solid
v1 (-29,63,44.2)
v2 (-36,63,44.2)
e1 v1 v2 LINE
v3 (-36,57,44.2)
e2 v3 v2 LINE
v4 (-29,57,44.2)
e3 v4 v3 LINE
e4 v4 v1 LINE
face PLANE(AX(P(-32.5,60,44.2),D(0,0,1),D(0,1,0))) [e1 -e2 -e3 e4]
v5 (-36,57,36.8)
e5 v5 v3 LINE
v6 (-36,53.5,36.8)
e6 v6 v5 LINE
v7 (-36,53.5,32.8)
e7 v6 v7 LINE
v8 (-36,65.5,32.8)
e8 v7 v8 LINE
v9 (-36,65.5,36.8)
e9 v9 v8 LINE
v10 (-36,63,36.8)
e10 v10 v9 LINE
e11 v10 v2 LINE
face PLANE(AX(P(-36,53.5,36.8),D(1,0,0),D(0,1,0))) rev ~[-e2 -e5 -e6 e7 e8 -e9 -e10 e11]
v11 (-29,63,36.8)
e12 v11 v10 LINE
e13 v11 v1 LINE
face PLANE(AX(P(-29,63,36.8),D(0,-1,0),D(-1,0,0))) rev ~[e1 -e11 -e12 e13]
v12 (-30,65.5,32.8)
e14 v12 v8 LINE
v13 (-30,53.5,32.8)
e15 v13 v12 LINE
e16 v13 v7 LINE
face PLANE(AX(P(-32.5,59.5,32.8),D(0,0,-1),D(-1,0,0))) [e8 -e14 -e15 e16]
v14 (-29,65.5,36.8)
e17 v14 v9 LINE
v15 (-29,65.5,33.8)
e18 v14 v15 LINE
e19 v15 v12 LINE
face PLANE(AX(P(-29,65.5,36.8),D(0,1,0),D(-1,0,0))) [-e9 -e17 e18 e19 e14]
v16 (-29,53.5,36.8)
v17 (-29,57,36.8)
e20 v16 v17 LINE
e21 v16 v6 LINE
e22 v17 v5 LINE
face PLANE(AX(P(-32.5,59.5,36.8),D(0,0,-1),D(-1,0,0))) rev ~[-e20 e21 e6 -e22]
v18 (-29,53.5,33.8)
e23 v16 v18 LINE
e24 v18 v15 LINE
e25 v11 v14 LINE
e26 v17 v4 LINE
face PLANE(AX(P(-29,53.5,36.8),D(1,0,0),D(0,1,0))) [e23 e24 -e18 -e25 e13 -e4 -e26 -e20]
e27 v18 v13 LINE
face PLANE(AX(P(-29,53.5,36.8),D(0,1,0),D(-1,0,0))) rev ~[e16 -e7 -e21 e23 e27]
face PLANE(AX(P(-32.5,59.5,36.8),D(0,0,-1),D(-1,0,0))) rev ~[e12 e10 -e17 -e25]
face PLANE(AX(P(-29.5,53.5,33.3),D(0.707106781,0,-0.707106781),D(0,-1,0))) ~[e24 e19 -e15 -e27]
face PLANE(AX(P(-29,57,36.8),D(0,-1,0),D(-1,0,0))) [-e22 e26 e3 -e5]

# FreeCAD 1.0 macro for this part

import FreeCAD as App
import Part
import Sketcher

V = App.Vector


def edges_at(feature, points):
    """Names of the edges that pass closest to the given points."""
    edges = feature.Shape.Edges
    near = lambda p: min(range(len(edges)), key=lambda i: edges[i].distToShape(Part.Vertex(*p))[0])
    return sorted({f"Edge{near(p) + 1}" for p in points})

doc = App.newDocument("Part")
body = doc.addObject("PartDesign::Body", "Body")

# Sketch on XY plane
sketch1 = body.newObject("Sketcher::SketchObject", "Sketch")
sketch1.AttachmentSupport = (doc.getObject("XY_Plane"), [""])
sketch1.MapMode = "FlatFace"
sketch1.AttachmentOffset = App.Placement(V(0, 0, 2.5), App.Rotation())
sketch1.addGeometry([
    Part.LineSegment(V(-13, -8, 0), V(-13, -15, 0)),
    Part.LineSegment(V(-13, -15, 0), V(-7, -15, 0)),
    Part.LineSegment(V(-7, -15, 0), V(-7, -8, 0)),
    Part.LineSegment(V(-7, -8, 0), V(-13, -8, 0)),
], False)
sketch1.addConstraint([
    Sketcher.Constraint("Coincident", 0, 2, 1, 1),
    Sketcher.Constraint("Coincident", 1, 2, 2, 1),
    Sketcher.Constraint("Coincident", 2, 2, 3, 1),
    Sketcher.Constraint("Coincident", 3, 2, 0, 1),
    Sketcher.Constraint("Vertical", 0),
    Sketcher.Constraint("Horizontal", 1),
    Sketcher.Constraint("Vertical", 2),
    Sketcher.Constraint("Horizontal", 3),
    Sketcher.Constraint("DistanceX", 1, 1, 1, 2, 6.0),
    Sketcher.Constraint("DistanceY", 0, 2, 0, 1, 7.0),
    Sketcher.Constraint("DistanceX", 0, 2, -1, 1, 13.0),
    Sketcher.Constraint("DistanceY", 0, 2, -1, 1, 15.0),
])
pad1 = body.newObject("PartDesign::Pad", "Pad")
pad1.Profile = sketch1
pad1.Length = 7.4
body2 = doc.addObject("PartDesign::Body", "Body001")

# Sketch on XY plane
sketch2 = body2.newObject("Sketcher::SketchObject", "Sketch001")
sketch2.AttachmentSupport = (doc.getObject("XY_Plane001"), [""])
sketch2.MapMode = "FlatFace"
sketch2.AttachmentOffset = App.Placement(V(0, 0, 2), App.Rotation())
sketch2.addGeometry([
    Part.LineSegment(V(-13, -19, 0), V(-13, -7, 0)),
    Part.LineSegment(V(-13, -7, 0), V(-6, -7, 0)),
    Part.LineSegment(V(-6, -7, 0), V(-6, -19, 0)),
    Part.LineSegment(V(-6, -19, 0), V(-13, -19, 0)),
], False)
sketch2.addConstraint([
    Sketcher.Constraint("Coincident", 0, 2, 1, 1),
    Sketcher.Constraint("Coincident", 1, 2, 2, 1),
    Sketcher.Constraint("Coincident", 2, 2, 3, 1),
    Sketcher.Constraint("Coincident", 3, 2, 0, 1),
    Sketcher.Constraint("Vertical", 0),
    Sketcher.Constraint("Horizontal", 1),
    Sketcher.Constraint("Vertical", 2),
    Sketcher.Constraint("Horizontal", 3),
    Sketcher.Constraint("DistanceX", 1, 1, 1, 2, 7.0),
    Sketcher.Constraint("DistanceY", 0, 1, 0, 2, 12.0),
    Sketcher.Constraint("DistanceX", 0, 2, -1, 1, 13.0),
    Sketcher.Constraint("DistanceY", 0, 2, -1, 1, 7.0),
])
pad2 = body2.newObject("PartDesign::Pad", "Pad001")
pad2.Profile = sketch2
pad2.Length = 4
pad2.Reversed = True
doc.recompute()

chamfer = body2.newObject("PartDesign::Chamfer", "Chamfer")
chamfer.Base = (pad2, edges_at(pad2, [(-13, -13, -2)]))
chamfer.Size = 1
body3 = doc.addObject("PartDesign::Body", "Body002")
doc.recompute()

body2.Placement = App.Placement(V(-23.5, -2, 0.5), App.Rotation(V(0, 0, 1), 90))
boolean = body3.newObject("PartDesign::Boolean", "Boolean")
boolean.Type = "Fuse"
boolean.addObjects([body2])
doc.recompute()

boolean2 = body3.newObject("PartDesign::Boolean", "Boolean001")
boolean2.Type = "Fuse"
boolean2.addObjects([body])
body4 = doc.addObject("PartDesign::Body", "Body003")
doc.recompute()

body3.Placement = App.Placement(V(-44, 70, 34.3), App.Rotation(V(0, 0, 1), 90))
boolean3 = body4.newObject("PartDesign::Boolean", "Boolean002")
boolean3.Type = "Fuse"
boolean3.addObjects([body3])

doc.recompute()
